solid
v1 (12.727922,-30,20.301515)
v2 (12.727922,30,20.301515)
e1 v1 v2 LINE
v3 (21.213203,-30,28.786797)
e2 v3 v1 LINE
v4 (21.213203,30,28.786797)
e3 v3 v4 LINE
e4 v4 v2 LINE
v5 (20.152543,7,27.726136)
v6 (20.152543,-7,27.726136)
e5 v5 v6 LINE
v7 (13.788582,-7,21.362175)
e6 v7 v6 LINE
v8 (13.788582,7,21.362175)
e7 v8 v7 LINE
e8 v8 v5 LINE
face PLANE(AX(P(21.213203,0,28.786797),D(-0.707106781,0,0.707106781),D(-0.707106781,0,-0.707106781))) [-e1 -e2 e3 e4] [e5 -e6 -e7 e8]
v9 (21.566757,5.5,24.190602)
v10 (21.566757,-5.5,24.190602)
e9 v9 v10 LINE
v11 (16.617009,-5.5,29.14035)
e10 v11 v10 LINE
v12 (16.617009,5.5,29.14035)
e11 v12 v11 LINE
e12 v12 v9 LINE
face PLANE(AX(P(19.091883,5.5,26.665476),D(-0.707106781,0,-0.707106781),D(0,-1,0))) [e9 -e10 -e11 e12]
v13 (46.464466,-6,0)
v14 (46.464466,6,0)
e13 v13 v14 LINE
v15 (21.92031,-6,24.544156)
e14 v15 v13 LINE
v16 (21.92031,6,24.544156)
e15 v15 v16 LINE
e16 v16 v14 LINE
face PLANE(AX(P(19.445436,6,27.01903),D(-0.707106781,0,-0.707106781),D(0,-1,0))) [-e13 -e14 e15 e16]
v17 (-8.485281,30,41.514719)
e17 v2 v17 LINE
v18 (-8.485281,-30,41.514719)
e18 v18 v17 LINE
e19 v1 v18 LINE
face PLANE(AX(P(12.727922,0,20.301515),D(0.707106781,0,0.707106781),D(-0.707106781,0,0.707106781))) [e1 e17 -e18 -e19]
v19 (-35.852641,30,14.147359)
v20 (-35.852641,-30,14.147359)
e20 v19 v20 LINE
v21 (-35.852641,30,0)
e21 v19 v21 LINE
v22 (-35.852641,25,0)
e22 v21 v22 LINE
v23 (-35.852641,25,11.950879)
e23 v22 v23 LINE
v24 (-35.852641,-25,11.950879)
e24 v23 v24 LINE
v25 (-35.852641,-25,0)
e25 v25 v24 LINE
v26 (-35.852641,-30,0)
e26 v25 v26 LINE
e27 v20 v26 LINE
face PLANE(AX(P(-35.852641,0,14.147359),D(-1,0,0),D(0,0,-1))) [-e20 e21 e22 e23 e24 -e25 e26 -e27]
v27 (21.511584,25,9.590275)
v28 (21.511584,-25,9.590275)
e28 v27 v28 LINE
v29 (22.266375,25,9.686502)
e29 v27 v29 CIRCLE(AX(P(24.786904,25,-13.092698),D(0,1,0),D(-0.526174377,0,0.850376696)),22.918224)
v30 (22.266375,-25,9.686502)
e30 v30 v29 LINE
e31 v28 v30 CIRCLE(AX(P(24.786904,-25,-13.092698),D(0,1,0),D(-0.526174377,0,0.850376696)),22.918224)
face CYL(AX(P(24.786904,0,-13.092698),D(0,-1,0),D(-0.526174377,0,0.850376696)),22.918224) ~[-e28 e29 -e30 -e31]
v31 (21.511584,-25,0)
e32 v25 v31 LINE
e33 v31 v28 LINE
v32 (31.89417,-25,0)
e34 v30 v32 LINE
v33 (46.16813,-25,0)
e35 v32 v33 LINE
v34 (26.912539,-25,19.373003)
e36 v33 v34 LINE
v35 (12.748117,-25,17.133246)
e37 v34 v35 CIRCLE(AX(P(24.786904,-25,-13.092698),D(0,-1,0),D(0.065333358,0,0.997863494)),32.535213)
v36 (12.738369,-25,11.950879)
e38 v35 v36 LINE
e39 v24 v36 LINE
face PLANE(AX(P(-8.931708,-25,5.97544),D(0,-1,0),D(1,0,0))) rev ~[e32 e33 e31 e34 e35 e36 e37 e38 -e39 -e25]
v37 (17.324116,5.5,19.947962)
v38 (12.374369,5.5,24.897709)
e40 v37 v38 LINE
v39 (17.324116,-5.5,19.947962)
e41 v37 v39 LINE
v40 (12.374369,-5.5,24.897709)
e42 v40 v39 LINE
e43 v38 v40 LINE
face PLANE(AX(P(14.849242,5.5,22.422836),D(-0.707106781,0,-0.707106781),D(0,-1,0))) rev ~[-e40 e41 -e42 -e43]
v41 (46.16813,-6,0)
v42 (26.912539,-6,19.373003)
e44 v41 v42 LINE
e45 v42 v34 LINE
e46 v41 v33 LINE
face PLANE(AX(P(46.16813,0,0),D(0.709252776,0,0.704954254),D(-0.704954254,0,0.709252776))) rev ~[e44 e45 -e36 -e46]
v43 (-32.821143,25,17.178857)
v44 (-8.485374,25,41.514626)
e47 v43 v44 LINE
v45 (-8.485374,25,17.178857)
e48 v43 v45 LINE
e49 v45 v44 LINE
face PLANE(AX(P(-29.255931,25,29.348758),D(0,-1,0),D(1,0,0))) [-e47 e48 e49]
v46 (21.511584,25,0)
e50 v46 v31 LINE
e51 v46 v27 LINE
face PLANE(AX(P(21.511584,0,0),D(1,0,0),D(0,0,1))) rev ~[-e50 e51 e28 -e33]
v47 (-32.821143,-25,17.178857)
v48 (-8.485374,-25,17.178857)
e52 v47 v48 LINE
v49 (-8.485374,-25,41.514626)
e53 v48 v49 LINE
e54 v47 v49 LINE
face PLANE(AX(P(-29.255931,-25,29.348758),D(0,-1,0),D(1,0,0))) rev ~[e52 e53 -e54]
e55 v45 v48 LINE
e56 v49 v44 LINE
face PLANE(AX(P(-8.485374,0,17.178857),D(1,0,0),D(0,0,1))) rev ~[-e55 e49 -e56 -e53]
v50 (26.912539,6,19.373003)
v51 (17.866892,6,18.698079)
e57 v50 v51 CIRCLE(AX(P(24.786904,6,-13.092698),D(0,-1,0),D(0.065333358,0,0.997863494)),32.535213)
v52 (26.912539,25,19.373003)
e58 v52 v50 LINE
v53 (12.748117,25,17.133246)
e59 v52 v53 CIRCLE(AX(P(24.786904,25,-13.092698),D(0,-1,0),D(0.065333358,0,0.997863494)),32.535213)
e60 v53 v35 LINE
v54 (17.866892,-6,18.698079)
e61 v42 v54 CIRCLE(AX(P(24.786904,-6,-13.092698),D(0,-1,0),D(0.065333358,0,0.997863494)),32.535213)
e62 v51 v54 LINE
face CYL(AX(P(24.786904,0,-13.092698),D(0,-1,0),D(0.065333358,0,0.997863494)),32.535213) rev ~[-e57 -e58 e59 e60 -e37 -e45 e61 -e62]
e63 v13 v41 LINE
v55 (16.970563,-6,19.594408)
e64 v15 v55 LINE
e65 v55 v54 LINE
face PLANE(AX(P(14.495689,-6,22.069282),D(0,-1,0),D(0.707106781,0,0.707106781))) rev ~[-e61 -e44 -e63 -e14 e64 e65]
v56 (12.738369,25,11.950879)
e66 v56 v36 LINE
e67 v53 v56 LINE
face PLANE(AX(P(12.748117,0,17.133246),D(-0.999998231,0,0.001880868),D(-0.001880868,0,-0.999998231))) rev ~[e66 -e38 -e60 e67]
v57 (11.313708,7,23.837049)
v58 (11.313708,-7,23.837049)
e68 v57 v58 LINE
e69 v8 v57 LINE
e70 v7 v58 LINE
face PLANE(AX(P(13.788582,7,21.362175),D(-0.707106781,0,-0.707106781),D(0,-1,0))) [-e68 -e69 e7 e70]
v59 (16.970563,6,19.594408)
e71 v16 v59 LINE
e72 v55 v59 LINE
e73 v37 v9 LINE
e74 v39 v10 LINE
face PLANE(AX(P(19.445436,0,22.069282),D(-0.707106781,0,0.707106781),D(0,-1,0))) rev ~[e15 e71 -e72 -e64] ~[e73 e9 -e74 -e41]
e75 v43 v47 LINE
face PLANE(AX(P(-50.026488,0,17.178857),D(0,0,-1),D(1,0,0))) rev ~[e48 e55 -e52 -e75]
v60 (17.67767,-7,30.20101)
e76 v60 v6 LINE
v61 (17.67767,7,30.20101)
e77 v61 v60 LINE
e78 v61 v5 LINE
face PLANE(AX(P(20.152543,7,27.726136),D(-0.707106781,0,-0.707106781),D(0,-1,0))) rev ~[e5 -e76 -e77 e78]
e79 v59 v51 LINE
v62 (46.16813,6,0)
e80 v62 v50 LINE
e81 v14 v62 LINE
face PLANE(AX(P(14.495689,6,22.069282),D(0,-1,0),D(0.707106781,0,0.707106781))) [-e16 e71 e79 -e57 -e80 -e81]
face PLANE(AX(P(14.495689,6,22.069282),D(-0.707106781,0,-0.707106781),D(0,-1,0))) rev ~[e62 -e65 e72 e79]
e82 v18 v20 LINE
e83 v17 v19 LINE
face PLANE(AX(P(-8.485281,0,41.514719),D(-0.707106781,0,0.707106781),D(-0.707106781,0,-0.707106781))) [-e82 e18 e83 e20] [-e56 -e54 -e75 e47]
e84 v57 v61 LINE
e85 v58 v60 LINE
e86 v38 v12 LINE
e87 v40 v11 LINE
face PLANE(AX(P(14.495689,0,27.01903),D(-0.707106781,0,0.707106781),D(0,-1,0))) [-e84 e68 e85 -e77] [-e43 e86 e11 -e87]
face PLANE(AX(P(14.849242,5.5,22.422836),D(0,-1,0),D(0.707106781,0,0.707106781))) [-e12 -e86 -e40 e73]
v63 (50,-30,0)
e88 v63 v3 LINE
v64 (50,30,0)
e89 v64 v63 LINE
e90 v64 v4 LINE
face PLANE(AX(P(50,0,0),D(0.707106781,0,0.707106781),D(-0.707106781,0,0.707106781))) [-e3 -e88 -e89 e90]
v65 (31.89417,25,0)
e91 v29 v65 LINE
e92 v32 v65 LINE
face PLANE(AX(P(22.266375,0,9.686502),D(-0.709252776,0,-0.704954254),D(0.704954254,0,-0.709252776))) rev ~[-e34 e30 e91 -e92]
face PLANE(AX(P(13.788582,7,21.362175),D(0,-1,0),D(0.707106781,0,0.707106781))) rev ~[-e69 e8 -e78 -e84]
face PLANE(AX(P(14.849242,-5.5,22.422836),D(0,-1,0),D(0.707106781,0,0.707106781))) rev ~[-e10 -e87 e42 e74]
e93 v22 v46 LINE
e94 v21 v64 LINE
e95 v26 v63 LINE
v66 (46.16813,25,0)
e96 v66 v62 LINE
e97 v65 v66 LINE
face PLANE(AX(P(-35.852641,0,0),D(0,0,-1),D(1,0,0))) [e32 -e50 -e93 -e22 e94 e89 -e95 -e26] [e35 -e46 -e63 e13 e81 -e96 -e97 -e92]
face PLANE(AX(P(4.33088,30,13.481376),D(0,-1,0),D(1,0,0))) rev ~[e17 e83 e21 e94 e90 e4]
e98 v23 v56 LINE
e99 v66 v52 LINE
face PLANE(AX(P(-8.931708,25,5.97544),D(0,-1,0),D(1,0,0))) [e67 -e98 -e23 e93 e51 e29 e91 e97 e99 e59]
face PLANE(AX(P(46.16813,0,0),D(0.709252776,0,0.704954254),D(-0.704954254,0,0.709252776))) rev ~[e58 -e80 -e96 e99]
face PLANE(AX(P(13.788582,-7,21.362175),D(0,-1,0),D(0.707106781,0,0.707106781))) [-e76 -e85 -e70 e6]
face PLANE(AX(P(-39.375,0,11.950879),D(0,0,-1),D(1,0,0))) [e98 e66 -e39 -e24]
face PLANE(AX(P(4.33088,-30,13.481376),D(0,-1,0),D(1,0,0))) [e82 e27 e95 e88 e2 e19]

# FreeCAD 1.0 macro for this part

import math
import FreeCAD as App
import Part
import Sketcher
from FreeCAD import Vector
Q = App.Units.Quantity


def add_polygon(sketch, points):
    """Adds a closed chain of lines whose ends are joined by coincident constraints."""
    first, n = sketch.GeometryCount, len(points)
    for a, b in zip(points, points[1:] + points[:1]):
        sketch.addGeometry(Part.LineSegment(App.Vector(*a, 0), App.Vector(*b, 0)), False)
    for i in range(n):
        sketch.addConstraint(Sketcher.Constraint("Coincident", first + i, 2, first + (i + 1) % n, 1))

doc = App.newDocument("Part")
body = doc.addObject("PartDesign::Body", "Body")

# Sketch on XZ plane
sketch1 = body.newObject("Sketcher::SketchObject", "Sketch")
sketch1.AttachmentSupport = (doc.getObject("XZ_Plane"), [""])
sketch1.MapMode = "FlatFace"
add_polygon(sketch1, [(-8, 42), (-36, 14), (-36, 0), (50, 0), (21, 29), (13, 20)])  # lines 0-5
sketch1.addConstraint(Sketcher.Constraint("Vertical", 1))
sketch1.addConstraint(Sketcher.Constraint("Horizontal", 2))
sketch1.addConstraint(Sketcher.Constraint("PointOnObject", 1, 2, -1))
sketch1.addConstraint(Sketcher.Constraint("Perpendicular", 0, 3))
sketch1.addConstraint(Sketcher.Constraint("Perpendicular", 3, 4))
sketch1.addConstraint(Sketcher.Constraint("Perpendicular", 4, 5))
sketch1.addConstraint(Sketcher.Constraint("Angle", 0, Q("-135 deg")))
sketch1.addConstraint(Sketcher.Constraint("Distance", 4, 12.0))
sketch1.addConstraint(Sketcher.Constraint("Distance", 5, 30.0))
sketch1.addConstraint(Sketcher.Constraint("DistanceX", -1, 1, 2, 2, 50.0))
sketch1.addConstraint(Sketcher.Constraint("DistanceX", 2, 1, 2, 2, 85.852641))
sketch1.addConstraint(Sketcher.Constraint("DistanceY", 1, 2, 1, 1, 14.147359))
pad1 = body.newObject("PartDesign::Pad", "Pad")
pad1.Profile = sketch1
pad1.Length = 60
pad1.Midplane = True

# Sketch on an angled plane
sketch2 = body.newObject("Sketcher::SketchObject", "Sketch001")
sketch2.Placement = App.Placement(Vector(-3.786797, 0, 3.786797), App.Rotation(Vector(0, -1, 0), Vector(0.707106781, 0, 0.707106781), Vector(-0.707106781, 0, 0.707106781), "ZXY"))
add_polygon(sketch2, [(-6, 33), (-6, 26), (6, 26), (6, 33)])  # lines 0-3
sketch2.addConstraint(Sketcher.Constraint("Vertical", 0))
sketch2.addConstraint(Sketcher.Constraint("Horizontal", 1))
sketch2.addConstraint(Sketcher.Constraint("Vertical", 2))
sketch2.addConstraint(Sketcher.Constraint("Horizontal", 3))
sketch2.addConstraint(Sketcher.Constraint("DistanceX", 1, 1, 1, 2, 12.0))
sketch2.addConstraint(Sketcher.Constraint("DistanceY", 0, 2, 0, 1, 7.0))
sketch2.addConstraint(Sketcher.Constraint("DistanceX", 0, 2, -1, 1, 6.0))
sketch2.addConstraint(Sketcher.Constraint("DistanceY", -1, 1, 0, 2, 25.855339))
pocket1 = body.newObject("PartDesign::Pocket", "Pocket")
pocket1.Profile = sketch2
pocket1.Type = "ThroughAll"

# Sketch on XZ plane
sketch3 = body.newObject("Sketcher::SketchObject", "Sketch002")
sketch3.AttachmentSupport = (doc.getObject("XZ_Plane"), [""])
sketch3.MapMode = "FlatFace"
sketch3.addGeometry(Part.LineSegment(Vector(32, 0, 0), Vector(46, 0, 0)), False)
sketch3.addGeometry(Part.LineSegment(Vector(46, 0, 0), Vector(27, 19, 0)), False)
sketch3.addGeometry(Part.ArcOfCircle(Part.Circle(Vector(25, -13, 0), Vector(0, 0, 1), 33), math.radians(86), math.radians(112)), False)
sketch3.addGeometry(Part.LineSegment(Vector(13, 17, 0), Vector(13, 6, 0)), False)
sketch3.addGeometry(Part.ArcOfCircle(Part.Circle(Vector(25, -13, 0), Vector(0, 0, 1), 23), math.radians(96), math.radians(122)), False)
sketch3.addGeometry(Part.LineSegment(Vector(22, 10, 0), Vector(32, 0, 0)), False)
sketch3.addConstraint(Sketcher.Constraint("Coincident", 0, 2, 1, 1))
sketch3.addConstraint(Sketcher.Constraint("Coincident", 1, 2, 2, 1))
sketch3.addConstraint(Sketcher.Constraint("Coincident", 2, 2, 3, 1))
sketch3.addConstraint(Sketcher.Constraint("Coincident", 3, 2, 4, 2))
sketch3.addConstraint(Sketcher.Constraint("Coincident", 4, 1, 5, 1))
sketch3.addConstraint(Sketcher.Constraint("Coincident", 5, 2, 0, 1))
sketch3.addConstraint(Sketcher.Constraint("Horizontal", 0))
sketch3.addConstraint(Sketcher.Constraint("Coincident", 4, 3, 2, 3))
sketch3.addConstraint(Sketcher.Constraint("PointOnObject", 0, 2, -1))
sketch3.addConstraint(Sketcher.Constraint("Parallel", 1, 5))
sketch3.addConstraint(Sketcher.Constraint("Radius", 2, 32.535213))
sketch3.addConstraint(Sketcher.Constraint("Radius", 4, 22.918224))
sketch3.addConstraint(Sketcher.Constraint("DistanceX", 0, 1, 0, 2, 14.27396))
sketch3.addConstraint(Sketcher.Constraint("DistanceY", 2, 3, -1, 1, 13.092698))
sketch3.addConstraint(Sketcher.Constraint("DistanceY", -1, 1, 4, 1, 9.686502))
sketch3.addConstraint(Sketcher.Constraint("DistanceY", 2, 3, 1, 2, 32.465701))
sketch3.addConstraint(Sketcher.Constraint("Distance", 3, 10.736839))
sketch3.addConstraint(Sketcher.Constraint("DistanceX", -1, 1, 0, 2, 46.16813))
sketch3.addConstraint(Sketcher.Constraint("DistanceX", 2, 2, 4, 1, 9.518258))
pocket2 = body.newObject("PartDesign::Pocket", "Pocket001")
pocket2.Profile = sketch3
pocket2.Length = 50
pocket2.Midplane = True

# Sketch on XZ plane
sketch4 = body.newObject("Sketcher::SketchObject", "Sketch003")
sketch4.AttachmentSupport = (doc.getObject("XZ_Plane"), [""])
sketch4.MapMode = "FlatFace"
add_polygon(sketch4, [(-39, 12), (-39, 0), (22, 0), (22, 12)])  # lines 0-3
sketch4.addConstraint(Sketcher.Constraint("Vertical", 0))
sketch4.addConstraint(Sketcher.Constraint("Horizontal", 1))
sketch4.addConstraint(Sketcher.Constraint("Vertical", 2))
sketch4.addConstraint(Sketcher.Constraint("Horizontal", 3))
sketch4.addConstraint(Sketcher.Constraint("PointOnObject", 0, 2, -1))
sketch4.addConstraint(Sketcher.Constraint("DistanceX", 0, 2, -1, 1, 39.375))
sketch4.addConstraint(Sketcher.Constraint("DistanceY", 0, 2, 0, 1, 11.950879))
sketch4.addConstraint(Sketcher.Constraint("DistanceX", 1, 1, 1, 2, 60.886583))
pocket3 = body.newObject("PartDesign::Pocket", "Pocket002")
pocket3.Profile = sketch4
pocket3.Length = 50
pocket3.Midplane = True

# Sketch on an angled plane
sketch5 = body.newObject("Sketcher::SketchObject", "Sketch004")
sketch5.Placement = App.Placement(Vector(-3.786797, 0, 3.786797), App.Rotation(Vector(0, -1, 0), Vector(0.707106781, 0, 0.707106781), Vector(-0.707106781, 0, 0.707106781), "ZXY"))
add_polygon(sketch5, [(-7, 34), (-7, 25), (7, 25), (7, 34)])  # lines 0-3
add_polygon(sketch5, [(6, 26), (-6, 26), (-6, 32), (6, 32)])  # lines 4-7
sketch5.addConstraint(Sketcher.Constraint("Vertical", 0))
sketch5.addConstraint(Sketcher.Constraint("Horizontal", 1))
sketch5.addConstraint(Sketcher.Constraint("Vertical", 2))
sketch5.addConstraint(Sketcher.Constraint("Horizontal", 3))
sketch5.addConstraint(Sketcher.Constraint("Horizontal", 4))
sketch5.addConstraint(Sketcher.Constraint("Vertical", 5))
sketch5.addConstraint(Sketcher.Constraint("Horizontal", 6))
sketch5.addConstraint(Sketcher.Constraint("Vertical", 7))
sketch5.addConstraint(Sketcher.Constraint("DistanceX", 1, 1, 1, 2, 14.0))
sketch5.addConstraint(Sketcher.Constraint("DistanceX", 4, 2, 4, 1, 11.0))
sketch5.addConstraint(Sketcher.Constraint("DistanceY", 0, 2, 0, 1, 9.0))
sketch5.addConstraint(Sketcher.Constraint("DistanceY", 5, 1, 5, 2, 6.0))
sketch5.addConstraint(Sketcher.Constraint("DistanceX", 0, 2, -1, 1, 7.0))
sketch5.addConstraint(Sketcher.Constraint("DistanceX", 4, 2, -1, 1, 5.5))
sketch5.addConstraint(Sketcher.Constraint("DistanceY", 0, 2, 4, 2, 1.5))
sketch5.addConstraint(Sketcher.Constraint("DistanceY", -1, 1, 0, 2, 24.855339))
pad2 = body.newObject("PartDesign::Pad", "Pad001")
pad2.Profile = sketch5
pad2.Length = 7
pad2.Midplane = True

# Sketch on XZ plane
sketch6 = body.newObject("Sketcher::SketchObject", "Sketch005")
sketch6.AttachmentSupport = (doc.getObject("XZ_Plane"), [""])
sketch6.MapMode = "FlatFace"
add_polygon(sketch6, [(-50, 42), (-50, 17), (-8, 17), (-8, 42)])  # lines 0-3
sketch6.addConstraint(Sketcher.Constraint("Vertical", 0))
sketch6.addConstraint(Sketcher.Constraint("Horizontal", 1))
sketch6.addConstraint(Sketcher.Constraint("Vertical", 2))
sketch6.addConstraint(Sketcher.Constraint("Horizontal", 3))
sketch6.addConstraint(Sketcher.Constraint("DistanceY", 0, 2, 0, 1, 24.339802))
sketch6.addConstraint(Sketcher.Constraint("DistanceX", 1, 1, 1, 2, 41.541114))
sketch6.addConstraint(Sketcher.Constraint("DistanceY", -1, 1, 2, 2, 41.518658))
sketch6.addConstraint(Sketcher.Constraint("DistanceX", 0, 2, -1, 1, 50.026488))
pocket4 = body.newObject("PartDesign::Pocket", "Pocket003")
pocket4.Profile = sketch6
pocket4.Length = 50
pocket4.Midplane = True

doc.recompute()
